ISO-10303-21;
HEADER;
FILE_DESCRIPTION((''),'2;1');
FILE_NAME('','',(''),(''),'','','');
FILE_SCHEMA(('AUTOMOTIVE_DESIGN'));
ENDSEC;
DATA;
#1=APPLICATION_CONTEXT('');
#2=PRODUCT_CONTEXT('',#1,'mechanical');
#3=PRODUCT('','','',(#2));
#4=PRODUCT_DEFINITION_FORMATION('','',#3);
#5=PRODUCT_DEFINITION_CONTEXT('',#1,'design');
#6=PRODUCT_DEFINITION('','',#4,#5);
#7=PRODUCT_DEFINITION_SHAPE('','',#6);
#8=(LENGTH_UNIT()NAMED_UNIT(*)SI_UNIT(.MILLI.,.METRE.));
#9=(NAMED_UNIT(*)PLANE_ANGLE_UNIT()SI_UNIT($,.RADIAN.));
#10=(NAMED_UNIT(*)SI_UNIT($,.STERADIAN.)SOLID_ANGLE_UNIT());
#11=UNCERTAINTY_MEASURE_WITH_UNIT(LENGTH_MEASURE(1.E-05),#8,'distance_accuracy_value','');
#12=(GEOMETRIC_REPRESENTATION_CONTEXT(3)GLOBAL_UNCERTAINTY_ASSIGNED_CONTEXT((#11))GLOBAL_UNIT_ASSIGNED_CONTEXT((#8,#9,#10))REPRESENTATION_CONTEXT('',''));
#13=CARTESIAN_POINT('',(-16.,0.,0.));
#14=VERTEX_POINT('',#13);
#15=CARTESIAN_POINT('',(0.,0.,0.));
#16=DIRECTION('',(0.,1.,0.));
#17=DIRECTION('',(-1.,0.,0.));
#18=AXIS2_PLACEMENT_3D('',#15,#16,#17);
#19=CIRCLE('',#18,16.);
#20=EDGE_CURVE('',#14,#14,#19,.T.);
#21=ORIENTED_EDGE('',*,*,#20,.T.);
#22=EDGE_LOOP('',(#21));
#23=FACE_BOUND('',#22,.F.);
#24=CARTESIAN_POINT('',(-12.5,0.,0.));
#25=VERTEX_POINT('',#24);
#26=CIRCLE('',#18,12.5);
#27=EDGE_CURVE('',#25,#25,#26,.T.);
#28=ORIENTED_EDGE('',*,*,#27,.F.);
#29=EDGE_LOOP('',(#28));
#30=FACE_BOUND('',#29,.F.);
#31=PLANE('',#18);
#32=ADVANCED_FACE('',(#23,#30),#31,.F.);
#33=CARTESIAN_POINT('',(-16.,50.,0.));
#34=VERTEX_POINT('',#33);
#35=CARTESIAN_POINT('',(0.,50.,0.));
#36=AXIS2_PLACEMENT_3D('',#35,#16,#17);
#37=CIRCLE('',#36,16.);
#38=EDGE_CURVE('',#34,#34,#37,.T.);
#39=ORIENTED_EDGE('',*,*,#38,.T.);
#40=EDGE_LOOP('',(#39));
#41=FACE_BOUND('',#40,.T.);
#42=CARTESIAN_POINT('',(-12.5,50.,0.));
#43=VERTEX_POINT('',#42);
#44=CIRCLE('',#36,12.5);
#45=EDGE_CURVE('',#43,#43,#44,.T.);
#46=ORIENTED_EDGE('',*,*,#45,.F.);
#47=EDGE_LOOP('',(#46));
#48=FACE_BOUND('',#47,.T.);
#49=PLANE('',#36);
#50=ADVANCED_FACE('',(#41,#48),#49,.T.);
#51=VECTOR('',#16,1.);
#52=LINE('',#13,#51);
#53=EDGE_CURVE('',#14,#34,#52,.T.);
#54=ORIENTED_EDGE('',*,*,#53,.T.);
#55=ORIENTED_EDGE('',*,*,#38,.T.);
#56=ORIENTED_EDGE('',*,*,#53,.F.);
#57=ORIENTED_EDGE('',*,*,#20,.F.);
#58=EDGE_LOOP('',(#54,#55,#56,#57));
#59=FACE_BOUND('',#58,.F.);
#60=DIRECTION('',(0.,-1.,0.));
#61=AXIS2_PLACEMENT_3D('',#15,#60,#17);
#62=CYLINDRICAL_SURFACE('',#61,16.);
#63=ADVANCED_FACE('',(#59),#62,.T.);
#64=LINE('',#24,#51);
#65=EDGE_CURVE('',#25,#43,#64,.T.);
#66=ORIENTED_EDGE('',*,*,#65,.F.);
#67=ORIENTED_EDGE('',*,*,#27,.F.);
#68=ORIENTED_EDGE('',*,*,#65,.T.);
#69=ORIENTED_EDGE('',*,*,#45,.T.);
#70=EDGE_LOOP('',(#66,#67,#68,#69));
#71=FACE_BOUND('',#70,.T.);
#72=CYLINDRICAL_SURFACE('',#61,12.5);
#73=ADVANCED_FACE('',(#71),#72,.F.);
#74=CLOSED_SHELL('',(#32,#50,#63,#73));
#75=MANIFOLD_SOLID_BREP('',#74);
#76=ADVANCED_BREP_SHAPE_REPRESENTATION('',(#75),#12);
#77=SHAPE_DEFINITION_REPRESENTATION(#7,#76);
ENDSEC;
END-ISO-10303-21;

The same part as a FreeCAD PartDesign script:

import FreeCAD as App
import Part
import Sketcher
Q = App.Units.Quantity

doc = App.newDocument("Part")
body = doc.addObject("PartDesign::Body", "Body")

sketch1 = body.newObject("Sketcher::SketchObject", "Sketch")
sketch1.AttachmentSupport = (doc.getObject("XZ_Plane"), [""])
sketch1.MapMode = "FlatFace"
sketch1.addGeometry([
    Part.Circle(App.Vector(0, 0, 0), App.Vector(0, 0, 1), 16),
    Part.Circle(App.Vector(0, 0, 0), App.Vector(0, 0, 1), 12),
], False)
sketch1.addConstraint([
    Sketcher.Constraint("Coincident", 0, 3, -1, 1),
    Sketcher.Constraint("Coincident", 1, 3, -1, 1),
    Sketcher.Constraint("Diameter", 0, Q("32 mm")),
    Sketcher.Constraint("Diameter", 1, Q("25 mm")),
])
pad1 = body.newObject("PartDesign::Pad", "Pad")
pad1.Profile = sketch1
pad1.Length = 50
pad1.Reversed = True

doc.recompute()
